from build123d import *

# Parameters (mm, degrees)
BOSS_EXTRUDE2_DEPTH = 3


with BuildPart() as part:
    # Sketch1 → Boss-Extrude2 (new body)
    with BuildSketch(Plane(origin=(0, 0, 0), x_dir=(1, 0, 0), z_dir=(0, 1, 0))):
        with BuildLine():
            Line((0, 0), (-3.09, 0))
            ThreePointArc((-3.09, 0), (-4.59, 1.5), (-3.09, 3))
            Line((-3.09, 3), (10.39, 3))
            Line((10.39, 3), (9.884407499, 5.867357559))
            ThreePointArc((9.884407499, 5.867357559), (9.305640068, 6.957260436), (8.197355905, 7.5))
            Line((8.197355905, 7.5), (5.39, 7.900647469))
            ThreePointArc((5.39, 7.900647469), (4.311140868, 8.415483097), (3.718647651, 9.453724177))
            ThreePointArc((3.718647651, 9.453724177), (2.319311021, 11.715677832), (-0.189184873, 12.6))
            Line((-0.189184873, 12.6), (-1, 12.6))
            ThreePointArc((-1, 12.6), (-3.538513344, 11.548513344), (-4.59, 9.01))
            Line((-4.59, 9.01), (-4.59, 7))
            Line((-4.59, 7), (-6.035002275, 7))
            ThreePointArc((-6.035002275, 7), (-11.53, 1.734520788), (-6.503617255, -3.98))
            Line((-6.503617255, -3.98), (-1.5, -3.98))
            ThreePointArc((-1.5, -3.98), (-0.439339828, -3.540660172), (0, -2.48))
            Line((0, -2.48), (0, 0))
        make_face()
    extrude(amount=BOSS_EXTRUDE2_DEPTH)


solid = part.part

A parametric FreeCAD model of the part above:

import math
import FreeCAD as App
import Part
import Sketcher
Q = App.Units.Quantity

doc = App.newDocument("Part")
body = doc.addObject("PartDesign::Body", "Body")

# Sketch on XZ plane
sketch1 = body.newObject("Sketcher::SketchObject", "Sketch")
sketch1.AttachmentSupport = (doc.getObject("XZ_Plane"), [""])
sketch1.MapMode = "FlatFace"
sketch1.addGeometry([
    Part.LineSegment(App.Vector(0, 0, 0), App.Vector(-3.1, 0, 0)),  # 0
    Part.ArcOfCircle(Part.Circle(App.Vector(-3.1, -1.5, 0), App.Vector(0, 0, 1), 1.5), math.radians(90), math.radians(270)),  # 1
    Part.LineSegment(App.Vector(-3.1, -3, 0), App.Vector(10.4, -3, 0)),  # 2
    Part.LineSegment(App.Vector(10.4, -3, 0), App.Vector(9.9, -5.9, 0)),  # 3
    Part.ArcOfCircle(Part.Circle(App.Vector(7.9, -5.5, 0), App.Vector(0, 0, 1), 2), math.radians(-82), math.radians(-10)),  # 4
    Part.LineSegment(App.Vector(8.2, -7.5, 0), App.Vector(5.4, -7.9, 0)),  # 5
    Part.ArcOfCircle(Part.Circle(App.Vector(5.7, -9.9, 0), App.Vector(0, 0, 1), 2), math.radians(98), math.radians(168)),  # 6
    Part.ArcOfCircle(Part.Circle(App.Vector(-0.2, -8.6, 0), App.Vector(0, 0, 1), 4), math.radians(-90), math.radians(-12)),  # 7
    Part.LineSegment(App.Vector(-0.2, -12.6, 0), App.Vector(-1, -12.6, 0)),  # 8
    Part.ArcOfCircle(Part.Circle(App.Vector(-1, -9, 0), App.Vector(0, 0, 1), 3.6), math.radians(-180), math.radians(-90)),  # 9
    Part.LineSegment(App.Vector(-4.6, -9, 0), App.Vector(-4.6, -7, 0)),  # 10
    Part.LineSegment(App.Vector(-4.6, -7, 0), App.Vector(-6, -7, 0)),  # 11
    Part.ArcOfCircle(Part.Circle(App.Vector(-6, -1.5, 0), App.Vector(0, 0, 1), 5.5), math.radians(95), math.radians(270)),  # 12
    Part.LineSegment(App.Vector(-6.5, 4, 0), App.Vector(-1.5, 4, 0)),  # 13
    Part.ArcOfCircle(Part.Circle(App.Vector(-1.5, 2.5, 0), App.Vector(0, 0, 1), 1.5), math.radians(0), math.radians(90)),  # 14
    Part.LineSegment(App.Vector(0, 2.5, 0), App.Vector(0, 0, 0)),  # 15
], False)
sketch1.addConstraint([
    Sketcher.Constraint("Tangent", 0, 2, 1, 1),
    Sketcher.Constraint("Tangent", 1, 2, 2, 1),
    Sketcher.Constraint("Coincident", 2, 2, 3, 1),
    Sketcher.Constraint("Tangent", 3, 2, 4, 2),
    Sketcher.Constraint("Tangent", 4, 1, 5, 1),
    Sketcher.Constraint("Tangent", 5, 2, 6, 1),
    Sketcher.Constraint("Tangent", 6, 2, 7, 2),
    Sketcher.Constraint("Tangent", 7, 1, 8, 1),
    Sketcher.Constraint("Tangent", 8, 2, 9, 2),
    Sketcher.Constraint("Tangent", 9, 1, 10, 1),
    Sketcher.Constraint("Coincident", 10, 2, 11, 1),
    Sketcher.Constraint("Tangent", 11, 2, 12, 2),
    Sketcher.Constraint("Coincident", 12, 1, 13, 1),
    Sketcher.Constraint("Tangent", 13, 2, 14, 2),
    Sketcher.Constraint("Tangent", 14, 1, 15, 1),
    Sketcher.Constraint("Coincident", 15, 2, 0, 1),
    Sketcher.Constraint("Horizontal", 0),
    Sketcher.Constraint("Horizontal", 2),
    Sketcher.Constraint("Horizontal", 8),
    Sketcher.Constraint("Vertical", 10),
    Sketcher.Constraint("Horizontal", 11),
    Sketcher.Constraint("Horizontal", 13),
    Sketcher.Constraint("Vertical", 15),
    Sketcher.Constraint("Coincident", 15, 2, -1, 1),
    Sketcher.Constraint("Equal", 4, 6),
    Sketcher.Constraint("Equal", 1, 14),
    Sketcher.Constraint("Horizontal", 1, 3, 12, 3),
    Sketcher.Constraint("Radius", 4, 2.0),
    Sketcher.Constraint("Radius", 7, 4.0),
    Sketcher.Constraint("Radius", 1, 1.5),
    Sketcher.Constraint("Radius", 12, 5.5),
    Sketcher.Constraint("Angle", 3, Q("-100 deg")),
    Sketcher.Constraint("Radius", 9, 3.59),
    Sketcher.Constraint("DistanceX", 9, 3, -1, 1, 1.0),
    Sketcher.Constraint("DistanceX", 0, 2, 0, 1, 3.09),
    Sketcher.Constraint("DistanceX", 2, 1, 2, 2, 13.48),
    Sketcher.Constraint("DistanceY", 10, 1, 10, 2, 2.01),
    Sketcher.Constraint("DistanceY", 15, 2, 15, 1, 2.48),
    Sketcher.Constraint("DistanceY", 4, 1, -1, 1, 7.5),
    Sketcher.Constraint("DistanceX", -1, 1, 5, 2, 5.39),
    Sketcher.Constraint("Distance", 5, 2.835801),
    Sketcher.Constraint("DistanceX", 11, 2, 11, 1, 1.445002),
])
pad1 = body.newObject("PartDesign::Pad", "Pad")
pad1.Profile = sketch1
pad1.Length = 3
pad1.Reversed = True

doc.recompute()
